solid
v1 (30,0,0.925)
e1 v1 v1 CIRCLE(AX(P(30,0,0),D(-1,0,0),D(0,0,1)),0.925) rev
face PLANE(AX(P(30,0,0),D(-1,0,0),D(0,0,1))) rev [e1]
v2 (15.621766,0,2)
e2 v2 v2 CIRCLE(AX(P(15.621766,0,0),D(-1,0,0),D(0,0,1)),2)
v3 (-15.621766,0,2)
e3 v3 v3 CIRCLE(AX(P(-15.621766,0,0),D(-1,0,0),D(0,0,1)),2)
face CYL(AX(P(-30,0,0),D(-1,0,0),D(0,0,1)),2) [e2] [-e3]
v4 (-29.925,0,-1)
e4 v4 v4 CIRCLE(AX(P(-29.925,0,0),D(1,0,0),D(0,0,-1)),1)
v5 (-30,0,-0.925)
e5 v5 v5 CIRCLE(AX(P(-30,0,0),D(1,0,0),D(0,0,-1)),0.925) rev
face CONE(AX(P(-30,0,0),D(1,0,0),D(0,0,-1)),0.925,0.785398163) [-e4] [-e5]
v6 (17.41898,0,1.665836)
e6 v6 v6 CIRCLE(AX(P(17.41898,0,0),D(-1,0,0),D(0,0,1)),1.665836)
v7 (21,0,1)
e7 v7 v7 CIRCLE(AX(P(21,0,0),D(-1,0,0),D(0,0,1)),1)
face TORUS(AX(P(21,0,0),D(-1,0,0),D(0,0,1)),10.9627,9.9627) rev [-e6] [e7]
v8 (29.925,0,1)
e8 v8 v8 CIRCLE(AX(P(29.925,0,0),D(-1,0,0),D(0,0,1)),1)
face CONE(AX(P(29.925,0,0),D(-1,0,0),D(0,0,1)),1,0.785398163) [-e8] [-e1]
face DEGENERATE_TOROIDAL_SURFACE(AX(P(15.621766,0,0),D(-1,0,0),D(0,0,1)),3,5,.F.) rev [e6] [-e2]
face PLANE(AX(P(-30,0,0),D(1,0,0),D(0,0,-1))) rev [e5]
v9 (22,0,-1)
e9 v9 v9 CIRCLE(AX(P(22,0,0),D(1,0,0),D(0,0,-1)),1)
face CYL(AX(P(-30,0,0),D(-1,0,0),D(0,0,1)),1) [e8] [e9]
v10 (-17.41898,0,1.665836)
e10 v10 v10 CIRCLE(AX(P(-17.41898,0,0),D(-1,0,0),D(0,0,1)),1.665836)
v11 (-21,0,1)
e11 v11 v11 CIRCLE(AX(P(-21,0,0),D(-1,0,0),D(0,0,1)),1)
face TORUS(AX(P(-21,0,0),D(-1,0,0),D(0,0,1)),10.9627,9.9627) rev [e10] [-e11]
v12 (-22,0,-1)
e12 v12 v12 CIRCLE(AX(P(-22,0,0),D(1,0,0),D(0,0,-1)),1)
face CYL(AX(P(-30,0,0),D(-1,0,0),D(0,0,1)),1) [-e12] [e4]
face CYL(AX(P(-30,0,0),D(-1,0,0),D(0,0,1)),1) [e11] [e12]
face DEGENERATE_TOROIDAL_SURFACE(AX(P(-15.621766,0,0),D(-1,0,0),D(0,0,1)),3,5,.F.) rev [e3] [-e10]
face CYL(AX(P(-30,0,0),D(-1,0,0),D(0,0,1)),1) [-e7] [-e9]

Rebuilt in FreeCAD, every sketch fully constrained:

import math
import FreeCAD as App
import Part
import Sketcher
from FreeCAD import Vector


def edges_at(feature, points):
    """Names of the edges that pass closest to the given points."""
    edges = feature.Shape.Edges
    near = lambda p: min(range(len(edges)), key=lambda i: edges[i].distToShape(Part.Vertex(*p))[0])
    return sorted({f"Edge{near(p) + 1}" for p in points})

doc = App.newDocument("Part")
params = doc.addObject("Spreadsheet::Sheet", "Params")
for row, (alias, value) in enumerate([
    ("sketch1_radius", "5 mm"),
    ("sketch1_width", "60 mm"),
    ("sketch1_width2", "9 mm"),
    ("sketch1_height", "1 mm"),
    ("revolution_angle", "360 deg"),
    ("chamfer_size", "0.075 mm"),
], start=1):
    params.set(f"A{row}", alias)
    params.set(f"B{row}", "=" + value)
    params.setAlias(f"B{row}", alias)

body = doc.addObject("PartDesign::Body", "Body")

# Sketch on XZ plane
sketch1 = doc.addObject("Sketcher::SketchObject", "Sketch")
body.addObject(sketch1)
sketch1.AttachmentSupport = (doc.XZ_Plane, [""])
sketch1.MapMode = "FlatFace"
sketch1.addGeometry(Part.LineSegment(Vector(-30, 0, 0), Vector(30, 0, 0)), False)
sketch1.addGeometry(Part.LineSegment(Vector(30, 0, 0), Vector(30, -1, 0)), False)
sketch1.addGeometry(Part.LineSegment(Vector(30, -1, 0), Vector(21, -1, 0)), False)
sketch1.addGeometry(Part.ArcOfCircle(Part.Circle(Vector(21, -11, 0), Vector(0, 0, 1), 10), math.radians(90), math.radians(111)), False)
sketch1.addGeometry(Part.ArcOfCircle(Part.Circle(Vector(15.6, 3, 0), Vector(0, 0, 1), 5), math.radians(-90), math.radians(-69)), False)
sketch1.addGeometry(Part.LineSegment(Vector(15.6, -2, 0), Vector(-15.6, -2, 0)), False)
sketch1.addGeometry(Part.ArcOfCircle(Part.Circle(Vector(-15.6, 3, 0), Vector(0, 0, 1), 5), math.radians(-111), math.radians(-90)), False)
sketch1.addGeometry(Part.ArcOfCircle(Part.Circle(Vector(-21, -11, 0), Vector(0, 0, 1), 10), math.radians(69), math.radians(90)), False)
sketch1.addGeometry(Part.LineSegment(Vector(-21, -1, 0), Vector(-30, -1, 0)), False)
sketch1.addGeometry(Part.LineSegment(Vector(-30, -1, 0), Vector(-30, 0, 0)), False)
sketch1.addConstraint(Sketcher.Constraint("Coincident", 0, 2, 1, 1))
sketch1.addConstraint(Sketcher.Constraint("Coincident", 1, 2, 2, 1))
sketch1.addConstraint(Sketcher.Constraint("Tangent", 2, 2, 3, 1))
sketch1.addConstraint(Sketcher.Constraint("Tangent", 3, 2, 4, 2))
sketch1.addConstraint(Sketcher.Constraint("Tangent", 4, 1, 5, 1))
sketch1.addConstraint(Sketcher.Constraint("Tangent", 5, 2, 6, 2))
sketch1.addConstraint(Sketcher.Constraint("Tangent", 6, 1, 7, 1))
sketch1.addConstraint(Sketcher.Constraint("Tangent", 7, 2, 8, 1))
sketch1.addConstraint(Sketcher.Constraint("Coincident", 8, 2, 9, 1))
sketch1.addConstraint(Sketcher.Constraint("Coincident", 9, 2, 0, 1))
sketch1.addConstraint(Sketcher.Constraint("Horizontal", 0))
sketch1.addConstraint(Sketcher.Constraint("Vertical", 1))
sketch1.addConstraint(Sketcher.Constraint("Horizontal", 2))
sketch1.addConstraint(Sketcher.Constraint("Horizontal", 5))
sketch1.addConstraint(Sketcher.Constraint("Horizontal", 8))
sketch1.addConstraint(Sketcher.Constraint("Vertical", 9))
sketch1.addConstraint(Sketcher.Constraint("Equal", 4, 6))
sketch1.addConstraint(Sketcher.Constraint("Equal", 3, 7))
sketch1.addConstraint(Sketcher.Constraint("Symmetric", 0, 2, 9, 2, -1, 1))
sketch1.addConstraint(Sketcher.Constraint("Symmetric", 3, 3, 7, 3, -2))
sketch1.addConstraint(Sketcher.Constraint("Radius", 4, 5.0))
sketch1.addConstraint(Sketcher.Constraint("DistanceX", 0, 1, 0, 2, 60.0))
sketch1.addConstraint(Sketcher.Constraint("DistanceX", 2, 2, 2, 1, 9.0))
sketch1.addConstraint(Sketcher.Constraint("DistanceY", 1, 2, 1, 1, 1.0))
sketch1.addConstraint(Sketcher.Constraint("DistanceY", -1, 1, 4, 3, 3.0))
sketch1.addConstraint(Sketcher.Constraint("Radius", 3, 9.9627))
sketch1.setExpression("Constraints[20]", "Params.sketch1_radius")
sketch1.setExpression("Constraints[21]", "Params.sketch1_width")
sketch1.setExpression("Constraints[22]", "Params.sketch1_width2")
sketch1.setExpression("Constraints[23]", "Params.sketch1_height")
revolution = doc.addObject("PartDesign::Revolution", "Revolution")
body.addObject(revolution)
revolution.Profile = sketch1
revolution.ReferenceAxis = (sketch1, ["H_Axis"])
revolution.setExpression("Angle", "Params.revolution_angle")
doc.recompute()

chamfer = doc.addObject("PartDesign::Chamfer", "Chamfer")
body.addObject(chamfer)
chamfer.Base = (revolution, edges_at(revolution, [(30, 0, -1), (-30, 0, -1)]))
chamfer.setExpression("Size", "Params.chamfer_size")

doc.recompute()
